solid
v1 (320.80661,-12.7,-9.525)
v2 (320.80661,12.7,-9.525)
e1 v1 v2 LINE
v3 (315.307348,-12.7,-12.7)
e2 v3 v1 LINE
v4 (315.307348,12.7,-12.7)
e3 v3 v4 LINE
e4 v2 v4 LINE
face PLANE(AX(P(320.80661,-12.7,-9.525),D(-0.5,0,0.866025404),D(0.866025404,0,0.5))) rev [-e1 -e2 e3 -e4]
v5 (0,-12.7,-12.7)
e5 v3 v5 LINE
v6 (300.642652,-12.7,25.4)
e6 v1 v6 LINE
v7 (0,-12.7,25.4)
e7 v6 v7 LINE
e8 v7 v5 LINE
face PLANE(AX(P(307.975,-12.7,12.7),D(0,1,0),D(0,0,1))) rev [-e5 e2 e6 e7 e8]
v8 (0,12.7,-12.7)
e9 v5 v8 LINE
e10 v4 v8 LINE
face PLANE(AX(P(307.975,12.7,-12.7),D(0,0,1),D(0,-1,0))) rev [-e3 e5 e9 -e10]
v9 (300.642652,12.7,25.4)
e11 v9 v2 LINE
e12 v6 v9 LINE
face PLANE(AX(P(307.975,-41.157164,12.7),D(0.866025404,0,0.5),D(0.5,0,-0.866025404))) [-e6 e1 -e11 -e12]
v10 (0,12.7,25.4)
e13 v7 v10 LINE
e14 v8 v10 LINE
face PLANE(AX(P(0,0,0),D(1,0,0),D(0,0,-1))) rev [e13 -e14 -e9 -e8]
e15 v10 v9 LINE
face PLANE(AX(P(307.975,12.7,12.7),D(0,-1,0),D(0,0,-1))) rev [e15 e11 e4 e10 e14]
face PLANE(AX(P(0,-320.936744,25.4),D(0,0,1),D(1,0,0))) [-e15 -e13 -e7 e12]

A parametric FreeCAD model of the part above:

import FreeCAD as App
import Part
import Sketcher
Q = App.Units.Quantity

doc = App.newDocument("Part")
body = doc.addObject("PartDesign::Body", "Body")

# Sketch on YZ plane
sketch1 = body.newObject("Sketcher::SketchObject", "Sketch")
sketch1.AttachmentSupport = (doc.getObject("YZ_Plane"), [""])
sketch1.MapMode = "FlatFace"
sketch1.addGeometry(Part.LineSegment(App.Vector(13, 13, 0), App.Vector(-13, 13, 0)), False)
sketch1.addGeometry(Part.LineSegment(App.Vector(-13, 13, 0), App.Vector(-13, -13, 0)), False)
sketch1.addGeometry(Part.LineSegment(App.Vector(-13, -13, 0), App.Vector(13, -13, 0)), False)
sketch1.addGeometry(Part.LineSegment(App.Vector(13, -13, 0), App.Vector(13, 13, 0)), False)
sketch1.addConstraint(Sketcher.Constraint("Coincident", 0, 2, 1, 1))
sketch1.addConstraint(Sketcher.Constraint("Coincident", 1, 2, 2, 1))
sketch1.addConstraint(Sketcher.Constraint("Coincident", 2, 2, 3, 1))
sketch1.addConstraint(Sketcher.Constraint("Coincident", 3, 2, 0, 1))
sketch1.addConstraint(Sketcher.Constraint("Horizontal", 0))
sketch1.addConstraint(Sketcher.Constraint("Vertical", 1))
sketch1.addConstraint(Sketcher.Constraint("Horizontal", 2))
sketch1.addConstraint(Sketcher.Constraint("Vertical", 3))
sketch1.addConstraint(Sketcher.Constraint("Symmetric", 0, 2, 2, 2, -1, 1))
sketch1.addConstraint(Sketcher.Constraint("Equal", 2, 1))
sketch1.addConstraint(Sketcher.Constraint("DistanceX", 0, 2, 0, 1, Q("1 in")))
pad1 = body.newObject("PartDesign::Pad", "Pad")
pad1.Profile = sketch1
pad1.Length = Q("12.125 in")

# Sketch on XZ plane
sketch2 = body.newObject("Sketcher::SketchObject", "Sketch001")
sketch2.AttachmentSupport = (doc.getObject("XZ_Plane"), [""])
sketch2.MapMode = "FlatFace"
sketch2.AttachmentOffset = App.Placement(App.Vector(0, 0, -0.5 * 25.4), App.Rotation())
sketch2.addGeometry(Part.LineSegment(App.Vector(308, 12.7, 0), App.Vector(320.8, -9.5, 0)), False)
sketch2.addGeometry(Part.LineSegment(App.Vector(320.8, -9.5, 0), App.Vector(320.8, -12.7, 0)), False)
sketch2.addGeometry(Part.LineSegment(App.Vector(320.8, -12.7, 0), App.Vector(308, -12.7, 0)), False)
sketch2.addGeometry(Part.LineSegment(App.Vector(308, -12.7, 0), App.Vector(308, 12.7, 0)), False)
sketch2.addConstraint(Sketcher.Constraint("Coincident", 0, 2, 1, 1))
sketch2.addConstraint(Sketcher.Constraint("Coincident", 1, 2, 2, 1))
sketch2.addConstraint(Sketcher.Constraint("Coincident", 2, 2, 3, 1))
sketch2.addConstraint(Sketcher.Constraint("Coincident", 3, 2, 0, 1))
sketch2.addConstraint(Sketcher.Constraint("Vertical", 1))
sketch2.addConstraint(Sketcher.Constraint("Horizontal", 2))
sketch2.addConstraint(Sketcher.Constraint("Vertical", 3))
sketch2.addConstraint(Sketcher.Constraint("DistanceY", 3, 1, 3, 2, Q("1 in")))
sketch2.addConstraint(Sketcher.Constraint("Angle", 0, Q("-60 deg")))
sketch2.addConstraint(Sketcher.Constraint("DistanceY", 1, 2, -1, 1, Q("0.5 in")))
sketch2.addConstraint(Sketcher.Constraint("DistanceY", 1, 2, 1, 1, Q("0.125 in")))
sketch2.addConstraint(Sketcher.Constraint("DistanceX", -1, 1, 2, 2, Q("12.125 in")))
pad2 = body.newObject("PartDesign::Pad", "Pad001")
pad2.Profile = sketch2
pad2.Length = Q("1 in")

# Sketch on XZ plane
sketch3 = body.newObject("Sketcher::SketchObject", "Sketch002")
sketch3.AttachmentSupport = (doc.getObject("XZ_Plane"), [""])
sketch3.MapMode = "FlatFace"
sketch3.AttachmentOffset = App.Placement(App.Vector(0, 0, -0.5 * 25.4), App.Rotation())
sketch3.addGeometry(Part.LineSegment(App.Vector(315.3, -12.7, 0), App.Vector(320.8, -9.5, 0)), False)
sketch3.addGeometry(Part.LineSegment(App.Vector(320.8, -9.5, 0), App.Vector(320.8, -12.7, 0)), False)
sketch3.addGeometry(Part.LineSegment(App.Vector(320.8, -12.7, 0), App.Vector(315.3, -12.7, 0)), False)
sketch3.addConstraint(Sketcher.Constraint("Coincident", 0, 2, 1, 1))
sketch3.addConstraint(Sketcher.Constraint("Coincident", 1, 2, 2, 1))
sketch3.addConstraint(Sketcher.Constraint("Coincident", 2, 2, 0, 1))
sketch3.addConstraint(Sketcher.Constraint("Vertical", 1))
sketch3.addConstraint(Sketcher.Constraint("Horizontal", 2))
sketch3.addConstraint(Sketcher.Constraint("Angle", 0, Q("30 deg")))
sketch3.addConstraint(Sketcher.Constraint("DistanceY", 1, 2, -1, 1, Q("0.5 in")))
sketch3.addConstraint(Sketcher.Constraint("Distance", 0, Q("0.25 in")))
sketch3.addConstraint(Sketcher.Constraint("DistanceX", -1, 1, 0, 2, Q("320.80661 mm")))
pocket1 = body.newObject("PartDesign::Pocket", "Pocket")
pocket1.Profile = sketch3
pocket1.Type = "ThroughAll"
pocket1.Midplane = True

# Sketch on XZ plane
sketch4 = body.newObject("Sketcher::SketchObject", "Sketch003")
sketch4.AttachmentSupport = (doc.getObject("XZ_Plane"), [""])
sketch4.MapMode = "FlatFace"
sketch4.AttachmentOffset = App.Placement(App.Vector(0, 0, -0.5 * 25.4), App.Rotation())
sketch4.addGeometry(Part.LineSegment(App.Vector(0, 13, 0), App.Vector(0, 25, 0)), False)
sketch4.addGeometry(Part.LineSegment(App.Vector(0, 25, 0), App.Vector(301, 25, 0)), False)
sketch4.addGeometry(Part.LineSegment(App.Vector(301, 25, 0), App.Vector(308, 13, 0)), False)
sketch4.addGeometry(Part.LineSegment(App.Vector(308, 13, 0), App.Vector(0, 13, 0)), False)
sketch4.addConstraint(Sketcher.Constraint("Coincident", 0, 2, 1, 1))
sketch4.addConstraint(Sketcher.Constraint("Coincident", 1, 2, 2, 1))
sketch4.addConstraint(Sketcher.Constraint("Coincident", 2, 2, 3, 1))
sketch4.addConstraint(Sketcher.Constraint("Coincident", 3, 2, 0, 1))
sketch4.addConstraint(Sketcher.Constraint("Vertical", 0))
sketch4.addConstraint(Sketcher.Constraint("Horizontal", 1))
sketch4.addConstraint(Sketcher.Constraint("Horizontal", 3))
sketch4.addConstraint(Sketcher.Constraint("PointOnObject", 0, 2, -2))
sketch4.addConstraint(Sketcher.Constraint("DistanceY", 0, 1, 0, 2, Q("0.5 in")))
sketch4.addConstraint(Sketcher.Constraint("DistanceY", -1, 1, 0, 2, Q("1 in")))
sketch4.addConstraint(Sketcher.Constraint("Angle", 2, Q("-60 deg")))
sketch4.addConstraint(Sketcher.Constraint("DistanceX", 3, 2, 3, 1, Q("12.125 in")))
pad3 = body.newObject("PartDesign::Pad", "Pad002")
pad3.Profile = sketch4
pad3.Length = Q("1 in")

doc.recompute()
